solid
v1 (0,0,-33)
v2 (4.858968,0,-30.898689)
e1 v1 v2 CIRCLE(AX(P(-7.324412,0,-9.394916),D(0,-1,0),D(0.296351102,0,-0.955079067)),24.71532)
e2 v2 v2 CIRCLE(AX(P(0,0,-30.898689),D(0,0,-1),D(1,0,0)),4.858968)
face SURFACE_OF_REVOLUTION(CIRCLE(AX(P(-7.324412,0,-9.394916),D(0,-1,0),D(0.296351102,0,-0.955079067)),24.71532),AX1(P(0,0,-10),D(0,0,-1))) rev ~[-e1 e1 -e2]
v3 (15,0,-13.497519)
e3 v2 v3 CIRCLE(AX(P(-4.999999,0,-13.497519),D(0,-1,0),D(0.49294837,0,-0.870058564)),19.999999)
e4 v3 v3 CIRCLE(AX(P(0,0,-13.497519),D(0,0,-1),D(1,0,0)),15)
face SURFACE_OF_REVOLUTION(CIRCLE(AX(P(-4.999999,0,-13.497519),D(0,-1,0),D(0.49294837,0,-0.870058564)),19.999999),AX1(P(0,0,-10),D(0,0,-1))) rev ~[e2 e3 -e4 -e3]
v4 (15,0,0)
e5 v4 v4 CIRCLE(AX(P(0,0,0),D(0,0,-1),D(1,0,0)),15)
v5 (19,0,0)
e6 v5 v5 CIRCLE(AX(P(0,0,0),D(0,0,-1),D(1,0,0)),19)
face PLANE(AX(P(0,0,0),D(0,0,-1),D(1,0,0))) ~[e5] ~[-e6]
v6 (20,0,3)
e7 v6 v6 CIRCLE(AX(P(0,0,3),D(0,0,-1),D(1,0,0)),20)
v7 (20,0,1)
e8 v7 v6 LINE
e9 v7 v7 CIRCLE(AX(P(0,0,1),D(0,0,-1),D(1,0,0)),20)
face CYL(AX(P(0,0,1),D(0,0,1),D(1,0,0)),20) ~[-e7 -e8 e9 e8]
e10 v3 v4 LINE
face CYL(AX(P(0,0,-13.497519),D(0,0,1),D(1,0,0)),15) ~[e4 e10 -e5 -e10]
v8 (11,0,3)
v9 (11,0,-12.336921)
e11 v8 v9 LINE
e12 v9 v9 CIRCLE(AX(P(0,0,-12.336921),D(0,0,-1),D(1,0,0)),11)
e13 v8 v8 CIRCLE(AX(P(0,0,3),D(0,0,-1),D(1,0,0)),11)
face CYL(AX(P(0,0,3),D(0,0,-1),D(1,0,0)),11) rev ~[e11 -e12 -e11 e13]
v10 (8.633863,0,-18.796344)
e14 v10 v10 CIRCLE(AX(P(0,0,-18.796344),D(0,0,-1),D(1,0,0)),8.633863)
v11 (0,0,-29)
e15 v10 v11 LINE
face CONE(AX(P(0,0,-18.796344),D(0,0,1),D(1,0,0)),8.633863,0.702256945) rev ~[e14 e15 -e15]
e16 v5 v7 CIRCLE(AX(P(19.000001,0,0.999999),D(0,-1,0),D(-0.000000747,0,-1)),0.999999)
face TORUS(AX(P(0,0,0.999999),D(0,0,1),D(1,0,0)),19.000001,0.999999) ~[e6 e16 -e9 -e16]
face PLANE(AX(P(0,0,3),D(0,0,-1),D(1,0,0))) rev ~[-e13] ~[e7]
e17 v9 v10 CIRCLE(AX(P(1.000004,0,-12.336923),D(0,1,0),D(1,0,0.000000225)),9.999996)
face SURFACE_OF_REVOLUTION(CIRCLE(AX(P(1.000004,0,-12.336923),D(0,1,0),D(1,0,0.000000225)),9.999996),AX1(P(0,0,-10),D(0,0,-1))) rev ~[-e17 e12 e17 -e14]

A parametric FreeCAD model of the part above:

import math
import FreeCAD as App
import Part
import Sketcher
from FreeCAD import Vector

doc = App.newDocument("Part")
params = doc.addObject("Spreadsheet::Sheet", "Params")
for row, (alias, value) in enumerate([
    ("sketch1_radius", "0.999999 mm"),
    ("sketch1_radius2", "19.999999 mm"),
    ("sketch1_width", "4 mm"),
    ("sketch1_width2", "9 mm"),
    ("sketch1_height", "2 mm"),
    ("revolution_angle", "360 deg"),
], start=1):
    params.set(f"A{row}", alias)
    params.set(f"B{row}", "=" + value)
    params.setAlias(f"B{row}", alias)

body = doc.addObject("PartDesign::Body", "Body")

sketch1 = body.newObject("Sketcher::SketchObject", "Sketch")
sketch1.AttachmentSupport = (doc.getObject("XZ_Plane"), [""])
sketch1.MapMode = "FlatFace"
sketch1.addGeometry(Part.LineSegment(Vector(15, -13.5, 0), Vector(15, 0, 0)), False)
sketch1.addGeometry(Part.LineSegment(Vector(15, 0, 0), Vector(19, 0, 0)), False)
sketch1.addGeometry(Part.ArcOfCircle(Part.Circle(Vector(19, 1, 0), Vector(0, 0, 1), 1), math.radians(-90), math.radians(0)), False)
sketch1.addGeometry(Part.LineSegment(Vector(20, 1, 0), Vector(20, 3, 0)), False)
sketch1.addGeometry(Part.LineSegment(Vector(20, 3, 0), Vector(11, 3, 0)), False)
sketch1.addGeometry(Part.LineSegment(Vector(11, 3, 0), Vector(11, -12.3, 0)), False)
sketch1.addGeometry(Part.ArcOfCircle(Part.Circle(Vector(1, -12.3, 0), Vector(0, 0, 1), 10), math.radians(-40), math.radians(0)), False)
sketch1.addGeometry(Part.LineSegment(Vector(8.6, -18.8, 0), Vector(0, -29, 0)), False)
sketch1.addGeometry(Part.LineSegment(Vector(0, -29, 0), Vector(0, -33, 0)), False)
sketch1.addGeometry(Part.ArcOfCircle(Part.Circle(Vector(-7.3, -9.4, 0), Vector(0, 0, 1), 24.7), math.radians(-72.76), math.radians(-60.47)), False)
sketch1.addGeometry(Part.ArcOfCircle(Part.Circle(Vector(-5, -13.5, 0), Vector(0, 0, 1), 20), math.radians(-60), math.radians(0)), False)
sketch1.addConstraint(Sketcher.Constraint("Coincident", 0, 2, 1, 1))
sketch1.addConstraint(Sketcher.Constraint("Tangent", 1, 2, 2, 1))
sketch1.addConstraint(Sketcher.Constraint("Tangent", 2, 2, 3, 1))
sketch1.addConstraint(Sketcher.Constraint("Coincident", 3, 2, 4, 1))
sketch1.addConstraint(Sketcher.Constraint("Coincident", 4, 2, 5, 1))
sketch1.addConstraint(Sketcher.Constraint("Tangent", 5, 2, 6, 2))
sketch1.addConstraint(Sketcher.Constraint("Tangent", 6, 1, 7, 1))
sketch1.addConstraint(Sketcher.Constraint("Coincident", 7, 2, 8, 1))
sketch1.addConstraint(Sketcher.Constraint("Coincident", 8, 2, 9, 1))
sketch1.addConstraint(Sketcher.Constraint("Tangent", 9, 2, 10, 1))
sketch1.addConstraint(Sketcher.Constraint("Tangent", 10, 2, 0, 1))
sketch1.addConstraint(Sketcher.Constraint("Vertical", 0))
sketch1.addConstraint(Sketcher.Constraint("Horizontal", 1))
sketch1.addConstraint(Sketcher.Constraint("Vertical", 3))
sketch1.addConstraint(Sketcher.Constraint("Horizontal", 4))
sketch1.addConstraint(Sketcher.Constraint("Vertical", 5))
sketch1.addConstraint(Sketcher.Constraint("Vertical", 8))
sketch1.addConstraint(Sketcher.Constraint("PointOnObject", 0, 2, -1))
sketch1.addConstraint(Sketcher.Constraint("PointOnObject", 7, 2, -2))
sketch1.addConstraint(Sketcher.Constraint("Equal", 1, 8))
sketch1.addConstraint(Sketcher.Constraint("Radius", 2, 0.999999))
sketch1.addConstraint(Sketcher.Constraint("Radius", 10, 19.999999))
sketch1.addConstraint(Sketcher.Constraint("DistanceX", 1, 1, 1, 2, 4.0))
sketch1.addConstraint(Sketcher.Constraint("DistanceX", 4, 2, 4, 1, 9.0))
sketch1.addConstraint(Sketcher.Constraint("DistanceY", 3, 1, 3, 2, 2.0))
sketch1.addConstraint(Sketcher.Constraint("DistanceX", -1, 1, 2, 3, 19.000001))
sketch1.addConstraint(Sketcher.Constraint("DistanceY", 7, 2, -1, 1, 29.0))
sketch1.addConstraint(Sketcher.Constraint("Radius", 9, 24.71532))
sketch1.addConstraint(Sketcher.Constraint("Radius", 6, 9.999996))
sketch1.addConstraint(Sketcher.Constraint("DistanceY", 0, 1, 0, 2, 13.497519))
sketch1.addConstraint(Sketcher.Constraint("DistanceY", 5, 2, 5, 1, 15.336921))
sketch1.setExpression("Constraints[20]", "Params.sketch1_radius")
sketch1.setExpression("Constraints[21]", "Params.sketch1_radius2")
sketch1.setExpression("Constraints[22]", "Params.sketch1_width")
sketch1.setExpression("Constraints[23]", "Params.sketch1_width2")
sketch1.setExpression("Constraints[24]", "Params.sketch1_height")
revolution = body.newObject("PartDesign::Revolution", "Revolution")
revolution.Profile = sketch1
revolution.ReferenceAxis = (sketch1, ["V_Axis"])
revolution.setExpression("Angle", "Params.revolution_angle")

doc.recompute()
